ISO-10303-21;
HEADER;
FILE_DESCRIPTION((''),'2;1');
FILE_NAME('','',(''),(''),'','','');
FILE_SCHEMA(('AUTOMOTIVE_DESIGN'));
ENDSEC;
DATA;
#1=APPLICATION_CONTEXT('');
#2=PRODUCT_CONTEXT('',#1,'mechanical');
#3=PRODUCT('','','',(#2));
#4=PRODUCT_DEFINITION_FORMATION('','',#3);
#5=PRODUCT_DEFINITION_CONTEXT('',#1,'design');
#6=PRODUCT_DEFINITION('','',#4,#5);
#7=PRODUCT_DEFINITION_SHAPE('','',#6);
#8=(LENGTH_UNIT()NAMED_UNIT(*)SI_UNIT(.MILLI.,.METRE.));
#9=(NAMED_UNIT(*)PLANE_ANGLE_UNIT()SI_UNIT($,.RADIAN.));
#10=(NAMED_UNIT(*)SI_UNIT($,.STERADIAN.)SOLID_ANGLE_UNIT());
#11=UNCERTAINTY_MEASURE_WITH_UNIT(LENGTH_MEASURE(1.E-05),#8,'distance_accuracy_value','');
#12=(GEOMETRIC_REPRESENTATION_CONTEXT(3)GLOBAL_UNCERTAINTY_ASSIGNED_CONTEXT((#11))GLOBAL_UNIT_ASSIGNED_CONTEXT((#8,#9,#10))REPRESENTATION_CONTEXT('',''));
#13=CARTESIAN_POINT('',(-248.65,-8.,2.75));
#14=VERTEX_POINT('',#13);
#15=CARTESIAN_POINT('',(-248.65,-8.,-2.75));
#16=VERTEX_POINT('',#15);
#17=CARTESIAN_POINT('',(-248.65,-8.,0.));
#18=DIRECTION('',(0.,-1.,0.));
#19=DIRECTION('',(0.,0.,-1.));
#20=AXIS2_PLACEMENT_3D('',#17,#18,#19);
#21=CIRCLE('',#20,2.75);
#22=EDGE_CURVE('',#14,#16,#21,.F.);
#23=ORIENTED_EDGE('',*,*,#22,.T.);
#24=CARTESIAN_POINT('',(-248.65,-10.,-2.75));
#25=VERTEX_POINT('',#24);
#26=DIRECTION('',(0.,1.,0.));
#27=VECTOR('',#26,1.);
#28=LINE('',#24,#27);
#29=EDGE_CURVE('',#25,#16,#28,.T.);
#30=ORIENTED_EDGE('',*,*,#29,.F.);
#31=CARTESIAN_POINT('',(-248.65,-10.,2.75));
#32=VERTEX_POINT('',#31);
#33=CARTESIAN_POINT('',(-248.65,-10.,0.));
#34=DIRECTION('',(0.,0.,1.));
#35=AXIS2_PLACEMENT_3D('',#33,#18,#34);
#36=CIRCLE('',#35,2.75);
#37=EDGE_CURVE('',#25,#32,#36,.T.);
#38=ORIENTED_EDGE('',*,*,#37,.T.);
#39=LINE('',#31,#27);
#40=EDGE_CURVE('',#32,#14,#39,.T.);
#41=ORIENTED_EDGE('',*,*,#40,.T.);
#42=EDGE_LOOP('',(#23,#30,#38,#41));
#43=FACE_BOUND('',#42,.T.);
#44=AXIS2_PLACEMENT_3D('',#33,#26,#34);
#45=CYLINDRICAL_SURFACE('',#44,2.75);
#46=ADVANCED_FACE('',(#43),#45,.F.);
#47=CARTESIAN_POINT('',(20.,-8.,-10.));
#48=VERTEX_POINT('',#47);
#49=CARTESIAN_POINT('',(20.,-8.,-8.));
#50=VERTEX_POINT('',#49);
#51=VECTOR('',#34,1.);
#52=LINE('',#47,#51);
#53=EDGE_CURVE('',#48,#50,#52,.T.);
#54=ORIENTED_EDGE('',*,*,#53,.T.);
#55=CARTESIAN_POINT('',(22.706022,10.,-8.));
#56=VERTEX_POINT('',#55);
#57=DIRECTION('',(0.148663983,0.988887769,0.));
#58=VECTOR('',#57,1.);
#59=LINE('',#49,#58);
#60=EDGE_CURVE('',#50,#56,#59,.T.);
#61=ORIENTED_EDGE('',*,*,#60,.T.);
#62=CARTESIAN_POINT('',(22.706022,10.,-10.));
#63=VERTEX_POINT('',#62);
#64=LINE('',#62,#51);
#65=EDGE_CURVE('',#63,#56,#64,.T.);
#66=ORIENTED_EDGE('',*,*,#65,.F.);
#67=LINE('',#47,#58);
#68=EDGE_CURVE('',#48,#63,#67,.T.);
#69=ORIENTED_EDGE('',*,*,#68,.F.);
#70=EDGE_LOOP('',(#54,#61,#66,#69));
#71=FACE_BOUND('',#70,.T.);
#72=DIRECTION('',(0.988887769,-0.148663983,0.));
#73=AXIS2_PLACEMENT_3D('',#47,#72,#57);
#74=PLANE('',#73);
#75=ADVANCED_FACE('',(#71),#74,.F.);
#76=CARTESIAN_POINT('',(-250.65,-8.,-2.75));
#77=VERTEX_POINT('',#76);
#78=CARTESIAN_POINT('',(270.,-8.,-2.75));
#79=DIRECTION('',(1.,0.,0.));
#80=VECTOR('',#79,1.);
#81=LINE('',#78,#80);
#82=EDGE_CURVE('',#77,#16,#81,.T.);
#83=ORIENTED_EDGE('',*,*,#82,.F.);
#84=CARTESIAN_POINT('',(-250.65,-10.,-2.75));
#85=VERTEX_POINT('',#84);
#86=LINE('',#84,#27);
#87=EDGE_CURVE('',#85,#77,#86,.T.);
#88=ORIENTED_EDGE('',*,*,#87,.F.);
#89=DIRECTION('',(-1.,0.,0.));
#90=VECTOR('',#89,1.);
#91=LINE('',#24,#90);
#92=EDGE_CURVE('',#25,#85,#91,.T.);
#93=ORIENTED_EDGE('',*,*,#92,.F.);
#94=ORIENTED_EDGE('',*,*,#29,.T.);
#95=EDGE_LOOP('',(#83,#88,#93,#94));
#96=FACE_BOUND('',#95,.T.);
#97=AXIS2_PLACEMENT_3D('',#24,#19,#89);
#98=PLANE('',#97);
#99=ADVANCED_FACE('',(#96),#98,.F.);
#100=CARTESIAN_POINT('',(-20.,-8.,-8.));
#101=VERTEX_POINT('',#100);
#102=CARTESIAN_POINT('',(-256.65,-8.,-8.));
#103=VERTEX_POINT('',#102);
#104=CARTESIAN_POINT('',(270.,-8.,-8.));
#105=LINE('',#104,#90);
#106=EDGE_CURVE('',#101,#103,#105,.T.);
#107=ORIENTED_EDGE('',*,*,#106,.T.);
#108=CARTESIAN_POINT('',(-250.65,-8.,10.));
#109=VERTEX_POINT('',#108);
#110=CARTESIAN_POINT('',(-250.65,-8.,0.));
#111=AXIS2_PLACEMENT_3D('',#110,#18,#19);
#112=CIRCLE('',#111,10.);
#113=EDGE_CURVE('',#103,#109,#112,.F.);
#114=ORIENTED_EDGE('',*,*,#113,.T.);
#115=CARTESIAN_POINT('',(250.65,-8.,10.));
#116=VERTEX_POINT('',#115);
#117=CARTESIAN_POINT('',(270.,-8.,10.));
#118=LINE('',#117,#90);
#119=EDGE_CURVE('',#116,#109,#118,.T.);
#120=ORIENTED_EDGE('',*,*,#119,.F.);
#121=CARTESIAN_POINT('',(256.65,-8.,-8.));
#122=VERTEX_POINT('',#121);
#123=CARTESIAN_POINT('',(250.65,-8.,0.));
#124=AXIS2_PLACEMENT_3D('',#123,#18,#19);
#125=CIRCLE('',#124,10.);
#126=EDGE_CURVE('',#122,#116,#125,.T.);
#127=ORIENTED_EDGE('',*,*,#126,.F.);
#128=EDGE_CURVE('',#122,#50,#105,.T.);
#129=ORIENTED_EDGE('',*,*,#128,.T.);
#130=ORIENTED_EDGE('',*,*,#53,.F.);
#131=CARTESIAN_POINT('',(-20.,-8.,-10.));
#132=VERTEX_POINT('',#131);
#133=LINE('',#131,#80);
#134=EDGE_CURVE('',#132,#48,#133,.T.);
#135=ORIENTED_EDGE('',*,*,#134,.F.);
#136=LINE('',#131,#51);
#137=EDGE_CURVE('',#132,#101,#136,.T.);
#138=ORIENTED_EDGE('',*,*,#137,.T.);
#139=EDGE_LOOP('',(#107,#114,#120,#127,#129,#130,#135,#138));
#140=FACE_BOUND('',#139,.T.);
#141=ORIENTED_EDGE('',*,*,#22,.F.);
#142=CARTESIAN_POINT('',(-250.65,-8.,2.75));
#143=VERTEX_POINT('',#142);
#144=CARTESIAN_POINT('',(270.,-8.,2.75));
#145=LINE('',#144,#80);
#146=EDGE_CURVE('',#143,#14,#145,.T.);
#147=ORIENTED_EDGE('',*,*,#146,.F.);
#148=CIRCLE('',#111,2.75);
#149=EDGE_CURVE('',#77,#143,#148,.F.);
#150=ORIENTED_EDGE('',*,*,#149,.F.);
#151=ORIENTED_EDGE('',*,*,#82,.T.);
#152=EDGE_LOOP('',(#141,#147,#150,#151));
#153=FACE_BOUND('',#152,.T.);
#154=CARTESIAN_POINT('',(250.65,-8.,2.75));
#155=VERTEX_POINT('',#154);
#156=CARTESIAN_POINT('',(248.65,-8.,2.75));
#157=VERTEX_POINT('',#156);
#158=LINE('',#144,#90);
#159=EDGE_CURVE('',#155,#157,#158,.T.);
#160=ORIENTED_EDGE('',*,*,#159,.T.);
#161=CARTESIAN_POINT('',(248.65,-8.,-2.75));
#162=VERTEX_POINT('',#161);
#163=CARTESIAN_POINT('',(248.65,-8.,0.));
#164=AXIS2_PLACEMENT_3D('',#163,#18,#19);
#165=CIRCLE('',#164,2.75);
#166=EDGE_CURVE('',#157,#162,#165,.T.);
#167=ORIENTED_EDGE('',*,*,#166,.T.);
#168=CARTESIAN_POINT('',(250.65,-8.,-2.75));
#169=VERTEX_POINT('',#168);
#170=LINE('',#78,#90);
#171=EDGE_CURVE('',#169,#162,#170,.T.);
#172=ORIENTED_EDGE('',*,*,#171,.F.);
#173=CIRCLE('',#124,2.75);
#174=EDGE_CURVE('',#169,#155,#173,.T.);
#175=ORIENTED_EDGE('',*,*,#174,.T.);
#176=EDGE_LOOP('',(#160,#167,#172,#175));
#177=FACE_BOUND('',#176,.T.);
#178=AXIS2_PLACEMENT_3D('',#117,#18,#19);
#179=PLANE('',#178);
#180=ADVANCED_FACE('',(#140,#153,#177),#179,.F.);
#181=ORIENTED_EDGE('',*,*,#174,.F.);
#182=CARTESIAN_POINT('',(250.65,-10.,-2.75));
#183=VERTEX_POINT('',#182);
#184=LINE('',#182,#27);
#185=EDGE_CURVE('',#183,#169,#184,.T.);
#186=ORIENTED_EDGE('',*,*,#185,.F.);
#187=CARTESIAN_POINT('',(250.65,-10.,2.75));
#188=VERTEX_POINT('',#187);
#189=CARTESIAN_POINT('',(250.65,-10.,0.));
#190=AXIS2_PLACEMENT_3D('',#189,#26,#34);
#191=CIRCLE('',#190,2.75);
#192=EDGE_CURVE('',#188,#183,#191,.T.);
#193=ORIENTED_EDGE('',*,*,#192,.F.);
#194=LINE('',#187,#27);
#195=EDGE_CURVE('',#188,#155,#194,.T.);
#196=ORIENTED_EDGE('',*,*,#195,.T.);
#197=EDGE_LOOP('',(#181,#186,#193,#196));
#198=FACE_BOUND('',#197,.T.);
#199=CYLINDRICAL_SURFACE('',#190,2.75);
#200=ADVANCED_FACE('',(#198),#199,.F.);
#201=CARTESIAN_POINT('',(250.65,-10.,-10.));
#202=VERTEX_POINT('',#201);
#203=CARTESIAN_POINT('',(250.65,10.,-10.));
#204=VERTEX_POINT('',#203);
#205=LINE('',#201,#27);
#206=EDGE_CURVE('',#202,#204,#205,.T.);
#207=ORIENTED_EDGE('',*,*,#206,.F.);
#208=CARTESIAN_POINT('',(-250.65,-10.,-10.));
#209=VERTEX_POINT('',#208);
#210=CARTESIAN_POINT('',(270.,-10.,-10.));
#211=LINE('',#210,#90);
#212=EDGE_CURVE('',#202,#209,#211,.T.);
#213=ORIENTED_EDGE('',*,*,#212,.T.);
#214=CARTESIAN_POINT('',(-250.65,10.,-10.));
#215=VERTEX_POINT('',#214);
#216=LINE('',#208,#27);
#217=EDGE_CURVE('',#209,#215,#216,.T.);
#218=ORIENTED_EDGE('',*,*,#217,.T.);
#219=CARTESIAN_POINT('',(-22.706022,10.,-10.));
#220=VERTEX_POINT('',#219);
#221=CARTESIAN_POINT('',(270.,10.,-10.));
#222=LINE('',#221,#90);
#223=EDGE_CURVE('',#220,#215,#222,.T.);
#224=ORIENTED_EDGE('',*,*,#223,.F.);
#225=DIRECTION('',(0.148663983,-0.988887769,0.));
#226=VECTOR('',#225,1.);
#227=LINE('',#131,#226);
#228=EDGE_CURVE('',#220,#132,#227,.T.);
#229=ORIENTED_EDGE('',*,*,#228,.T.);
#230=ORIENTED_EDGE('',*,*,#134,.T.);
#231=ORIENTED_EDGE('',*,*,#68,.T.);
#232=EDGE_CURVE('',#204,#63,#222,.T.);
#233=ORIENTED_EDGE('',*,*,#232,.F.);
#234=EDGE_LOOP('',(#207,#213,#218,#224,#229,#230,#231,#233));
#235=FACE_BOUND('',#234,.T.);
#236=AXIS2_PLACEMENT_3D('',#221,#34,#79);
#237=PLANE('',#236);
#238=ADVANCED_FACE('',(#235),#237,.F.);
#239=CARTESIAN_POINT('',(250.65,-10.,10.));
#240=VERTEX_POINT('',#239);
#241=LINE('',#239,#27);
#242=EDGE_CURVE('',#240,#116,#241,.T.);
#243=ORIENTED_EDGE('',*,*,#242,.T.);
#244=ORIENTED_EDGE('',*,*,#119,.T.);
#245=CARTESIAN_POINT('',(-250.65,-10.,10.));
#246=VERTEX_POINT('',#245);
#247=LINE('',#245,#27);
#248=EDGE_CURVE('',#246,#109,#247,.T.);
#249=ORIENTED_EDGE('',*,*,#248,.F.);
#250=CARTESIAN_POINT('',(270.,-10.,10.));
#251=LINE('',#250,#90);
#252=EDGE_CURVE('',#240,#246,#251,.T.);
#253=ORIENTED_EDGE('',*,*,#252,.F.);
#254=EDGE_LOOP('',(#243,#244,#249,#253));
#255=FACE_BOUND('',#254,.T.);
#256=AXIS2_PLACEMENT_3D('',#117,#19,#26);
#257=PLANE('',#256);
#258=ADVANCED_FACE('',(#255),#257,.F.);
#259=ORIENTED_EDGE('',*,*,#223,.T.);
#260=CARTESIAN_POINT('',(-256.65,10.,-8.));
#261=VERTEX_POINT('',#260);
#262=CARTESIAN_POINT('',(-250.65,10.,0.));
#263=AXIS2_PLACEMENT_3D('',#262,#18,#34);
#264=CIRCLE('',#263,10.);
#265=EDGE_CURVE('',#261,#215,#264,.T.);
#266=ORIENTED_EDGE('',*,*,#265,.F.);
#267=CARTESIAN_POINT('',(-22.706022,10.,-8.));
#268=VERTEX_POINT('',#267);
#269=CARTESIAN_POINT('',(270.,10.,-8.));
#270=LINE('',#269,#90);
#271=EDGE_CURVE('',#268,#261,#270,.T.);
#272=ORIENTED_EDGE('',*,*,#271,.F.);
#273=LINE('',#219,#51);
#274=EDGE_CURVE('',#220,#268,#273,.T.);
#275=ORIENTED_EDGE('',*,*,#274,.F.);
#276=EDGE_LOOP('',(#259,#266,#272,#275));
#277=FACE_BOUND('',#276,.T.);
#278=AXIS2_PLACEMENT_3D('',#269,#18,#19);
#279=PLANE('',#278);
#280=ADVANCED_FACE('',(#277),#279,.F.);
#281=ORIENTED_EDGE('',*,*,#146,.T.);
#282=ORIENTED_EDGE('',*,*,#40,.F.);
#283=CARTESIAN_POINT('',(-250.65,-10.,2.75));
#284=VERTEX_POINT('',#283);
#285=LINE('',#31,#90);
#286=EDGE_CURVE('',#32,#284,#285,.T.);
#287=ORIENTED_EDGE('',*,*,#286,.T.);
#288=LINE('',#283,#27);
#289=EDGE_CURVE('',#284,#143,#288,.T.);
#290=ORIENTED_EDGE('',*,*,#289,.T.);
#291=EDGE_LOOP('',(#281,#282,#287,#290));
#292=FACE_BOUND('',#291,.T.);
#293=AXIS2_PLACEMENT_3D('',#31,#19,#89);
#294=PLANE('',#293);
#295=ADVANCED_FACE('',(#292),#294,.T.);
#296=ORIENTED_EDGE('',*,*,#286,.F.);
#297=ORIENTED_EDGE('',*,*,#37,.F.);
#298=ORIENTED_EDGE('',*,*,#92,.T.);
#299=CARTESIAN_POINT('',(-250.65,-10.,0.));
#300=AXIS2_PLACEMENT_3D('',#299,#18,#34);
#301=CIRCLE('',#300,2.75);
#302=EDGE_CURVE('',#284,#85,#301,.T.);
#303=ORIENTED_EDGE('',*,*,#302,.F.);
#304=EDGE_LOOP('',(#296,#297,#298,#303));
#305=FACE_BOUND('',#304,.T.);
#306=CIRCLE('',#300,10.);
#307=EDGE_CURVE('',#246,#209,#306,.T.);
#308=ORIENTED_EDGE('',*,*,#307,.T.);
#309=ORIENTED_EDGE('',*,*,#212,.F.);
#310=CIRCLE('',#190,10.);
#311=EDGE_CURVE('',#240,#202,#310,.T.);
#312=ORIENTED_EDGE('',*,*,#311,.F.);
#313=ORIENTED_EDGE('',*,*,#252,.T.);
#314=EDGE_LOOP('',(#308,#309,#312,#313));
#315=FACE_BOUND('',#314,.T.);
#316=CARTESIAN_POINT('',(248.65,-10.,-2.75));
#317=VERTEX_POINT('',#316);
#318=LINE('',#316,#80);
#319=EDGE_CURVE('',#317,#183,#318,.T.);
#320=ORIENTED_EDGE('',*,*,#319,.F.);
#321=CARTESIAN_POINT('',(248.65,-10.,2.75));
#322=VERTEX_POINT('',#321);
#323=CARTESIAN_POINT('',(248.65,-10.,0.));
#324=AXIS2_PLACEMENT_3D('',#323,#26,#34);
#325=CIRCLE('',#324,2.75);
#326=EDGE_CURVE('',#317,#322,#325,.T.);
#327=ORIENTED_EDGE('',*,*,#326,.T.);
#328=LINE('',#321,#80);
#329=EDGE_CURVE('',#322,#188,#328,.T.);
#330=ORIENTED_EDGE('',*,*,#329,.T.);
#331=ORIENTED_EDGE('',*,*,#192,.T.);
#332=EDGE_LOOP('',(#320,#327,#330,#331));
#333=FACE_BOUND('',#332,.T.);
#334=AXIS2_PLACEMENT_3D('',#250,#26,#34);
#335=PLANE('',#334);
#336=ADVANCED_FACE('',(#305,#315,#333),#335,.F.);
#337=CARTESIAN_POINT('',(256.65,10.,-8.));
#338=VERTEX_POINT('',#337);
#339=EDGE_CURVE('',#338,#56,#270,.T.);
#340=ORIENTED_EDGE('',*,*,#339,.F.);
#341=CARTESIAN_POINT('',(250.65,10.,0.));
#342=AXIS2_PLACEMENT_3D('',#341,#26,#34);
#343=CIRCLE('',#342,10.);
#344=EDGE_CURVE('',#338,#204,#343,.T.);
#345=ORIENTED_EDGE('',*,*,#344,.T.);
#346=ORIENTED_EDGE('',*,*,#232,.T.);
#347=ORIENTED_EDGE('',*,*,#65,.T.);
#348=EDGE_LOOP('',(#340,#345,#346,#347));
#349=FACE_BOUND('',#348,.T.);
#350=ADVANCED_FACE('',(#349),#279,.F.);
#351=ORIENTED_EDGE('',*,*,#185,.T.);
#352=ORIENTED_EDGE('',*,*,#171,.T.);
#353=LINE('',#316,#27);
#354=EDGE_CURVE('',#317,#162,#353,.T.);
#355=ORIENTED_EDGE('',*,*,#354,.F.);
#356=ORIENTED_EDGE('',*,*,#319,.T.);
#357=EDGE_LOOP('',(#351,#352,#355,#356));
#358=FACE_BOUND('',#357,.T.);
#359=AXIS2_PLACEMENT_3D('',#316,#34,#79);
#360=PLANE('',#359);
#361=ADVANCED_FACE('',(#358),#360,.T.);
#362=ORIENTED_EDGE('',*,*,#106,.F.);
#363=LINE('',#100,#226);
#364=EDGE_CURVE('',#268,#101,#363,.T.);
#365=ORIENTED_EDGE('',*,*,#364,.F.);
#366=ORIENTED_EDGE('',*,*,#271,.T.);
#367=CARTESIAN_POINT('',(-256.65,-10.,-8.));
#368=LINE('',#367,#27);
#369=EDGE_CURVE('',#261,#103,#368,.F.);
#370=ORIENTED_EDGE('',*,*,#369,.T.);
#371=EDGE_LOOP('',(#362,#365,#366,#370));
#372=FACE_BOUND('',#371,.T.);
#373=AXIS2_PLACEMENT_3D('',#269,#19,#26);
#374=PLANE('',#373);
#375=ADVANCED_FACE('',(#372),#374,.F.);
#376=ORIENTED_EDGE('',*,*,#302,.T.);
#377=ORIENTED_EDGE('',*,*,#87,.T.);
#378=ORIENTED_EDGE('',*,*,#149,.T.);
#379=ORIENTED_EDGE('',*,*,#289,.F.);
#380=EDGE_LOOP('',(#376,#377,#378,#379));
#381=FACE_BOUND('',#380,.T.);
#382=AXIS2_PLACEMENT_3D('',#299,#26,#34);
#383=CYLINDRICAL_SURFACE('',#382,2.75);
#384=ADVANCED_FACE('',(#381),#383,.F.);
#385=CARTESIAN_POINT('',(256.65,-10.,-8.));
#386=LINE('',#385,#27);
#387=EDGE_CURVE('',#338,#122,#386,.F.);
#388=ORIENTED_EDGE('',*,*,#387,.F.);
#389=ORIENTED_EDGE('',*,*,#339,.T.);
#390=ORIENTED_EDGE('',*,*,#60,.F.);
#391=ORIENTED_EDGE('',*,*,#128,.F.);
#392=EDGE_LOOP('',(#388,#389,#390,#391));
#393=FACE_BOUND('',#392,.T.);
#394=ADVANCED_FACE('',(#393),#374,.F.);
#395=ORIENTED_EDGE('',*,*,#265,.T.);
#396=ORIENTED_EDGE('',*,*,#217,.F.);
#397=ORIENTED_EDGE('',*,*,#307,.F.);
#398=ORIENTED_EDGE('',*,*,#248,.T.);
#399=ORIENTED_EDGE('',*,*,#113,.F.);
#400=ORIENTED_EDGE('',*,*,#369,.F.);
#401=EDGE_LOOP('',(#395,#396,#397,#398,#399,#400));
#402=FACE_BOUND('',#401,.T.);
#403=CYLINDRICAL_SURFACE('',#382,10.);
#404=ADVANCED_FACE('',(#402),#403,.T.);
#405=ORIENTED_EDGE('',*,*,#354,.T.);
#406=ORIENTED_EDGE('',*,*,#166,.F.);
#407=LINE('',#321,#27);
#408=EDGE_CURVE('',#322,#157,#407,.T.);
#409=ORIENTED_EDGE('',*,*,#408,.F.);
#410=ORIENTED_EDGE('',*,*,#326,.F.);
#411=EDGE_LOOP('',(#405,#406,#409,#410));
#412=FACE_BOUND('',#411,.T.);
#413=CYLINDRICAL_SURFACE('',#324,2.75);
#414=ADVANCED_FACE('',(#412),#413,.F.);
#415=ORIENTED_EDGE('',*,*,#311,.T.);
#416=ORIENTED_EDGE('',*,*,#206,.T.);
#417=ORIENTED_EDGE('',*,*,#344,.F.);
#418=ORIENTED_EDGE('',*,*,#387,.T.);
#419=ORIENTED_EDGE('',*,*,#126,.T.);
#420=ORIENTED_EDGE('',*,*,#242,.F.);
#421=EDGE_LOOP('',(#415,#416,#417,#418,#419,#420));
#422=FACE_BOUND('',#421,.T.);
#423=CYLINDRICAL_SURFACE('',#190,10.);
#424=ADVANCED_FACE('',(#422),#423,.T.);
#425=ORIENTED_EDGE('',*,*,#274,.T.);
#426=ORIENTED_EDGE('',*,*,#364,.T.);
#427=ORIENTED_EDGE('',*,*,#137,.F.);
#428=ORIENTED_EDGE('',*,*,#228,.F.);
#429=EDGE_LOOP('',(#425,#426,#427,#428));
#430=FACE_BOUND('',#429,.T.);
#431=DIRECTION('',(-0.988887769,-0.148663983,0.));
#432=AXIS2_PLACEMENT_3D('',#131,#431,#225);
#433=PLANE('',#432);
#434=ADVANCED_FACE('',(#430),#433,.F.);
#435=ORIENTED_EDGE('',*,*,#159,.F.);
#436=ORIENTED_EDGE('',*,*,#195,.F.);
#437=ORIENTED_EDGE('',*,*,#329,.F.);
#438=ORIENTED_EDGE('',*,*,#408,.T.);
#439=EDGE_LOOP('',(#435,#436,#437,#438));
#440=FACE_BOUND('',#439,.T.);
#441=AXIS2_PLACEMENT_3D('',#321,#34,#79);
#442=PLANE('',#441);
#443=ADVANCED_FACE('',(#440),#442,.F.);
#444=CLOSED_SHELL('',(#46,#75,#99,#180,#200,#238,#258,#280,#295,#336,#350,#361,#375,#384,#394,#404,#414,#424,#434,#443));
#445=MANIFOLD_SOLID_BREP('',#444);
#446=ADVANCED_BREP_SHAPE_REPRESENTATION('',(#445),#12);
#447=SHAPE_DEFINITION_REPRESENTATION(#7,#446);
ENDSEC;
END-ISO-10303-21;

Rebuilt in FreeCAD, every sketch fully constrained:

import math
import FreeCAD as App
import Part
import Sketcher

V = App.Vector
Q = App.Units.Quantity

doc = App.newDocument("Part")
body = doc.addObject("PartDesign::Body", "Body")

# Sketch on YZ plane
sketch1 = body.newObject("Sketcher::SketchObject", "Sketch")
sketch1.AttachmentSupport = (doc.getObject("YZ_Plane"), [""])
sketch1.MapMode = "FlatFace"
sketch1.addGeometry([
    Part.LineSegment(V(10, -10, 0), V(10, -8, 0)),  # 0
    Part.LineSegment(V(10, -8, 0), V(-8, -8, 0)),  # 1
    Part.LineSegment(V(-8, -8, 0), V(-8, 10, 0)),  # 2
    Part.LineSegment(V(-8, 10, 0), V(-10, 10, 0)),  # 3
    Part.LineSegment(V(-10, 10, 0), V(-10, -10, 0)),  # 4
    Part.LineSegment(V(-10, -10, 0), V(10, -10, 0)),  # 5
], False)
sketch1.addConstraint([
    Sketcher.Constraint("Coincident", 0, 2, 1, 1),
    Sketcher.Constraint("Coincident", 1, 2, 2, 1),
    Sketcher.Constraint("Coincident", 2, 2, 3, 1),
    Sketcher.Constraint("Coincident", 3, 2, 4, 1),
    Sketcher.Constraint("Coincident", 4, 2, 5, 1),
    Sketcher.Constraint("Coincident", 5, 2, 0, 1),
    Sketcher.Constraint("Vertical", 0),
    Sketcher.Constraint("Horizontal", 1),
    Sketcher.Constraint("Vertical", 2),
    Sketcher.Constraint("Horizontal", 3),
    Sketcher.Constraint("Vertical", 4),
    Sketcher.Constraint("Horizontal", 5),
    Sketcher.Constraint("Symmetric", 3, 2, 5, 2, -1, 1),
    Sketcher.Constraint("Equal", 3, 0),
    Sketcher.Constraint("Equal", 1, 2),
    Sketcher.Constraint("DistanceX", 1, 2, 1, 1, Q("18 mm")),
    Sketcher.Constraint("DistanceX", 3, 2, 3, 1, Q("2 mm")),
])
pad1 = body.newObject("PartDesign::Pad", "Pad")
pad1.Profile = sketch1
pad1.Length = 540
pad1.Midplane = True

# Sketch on XZ plane
sketch2 = body.newObject("Sketcher::SketchObject", "Sketch001")
sketch2.AttachmentSupport = (doc.getObject("XZ_Plane"), [""])
sketch2.MapMode = "FlatFace"
sketch2.addGeometry([
    Part.LineSegment(V(250.65, -2.75, 0), V(248.65, -2.75, 0)),  # 0
    Part.ArcOfCircle(Part.Circle(V(248.65, 0, 0), V(0, 0, 1), 2.75), math.radians(90), math.radians(270)),  # 1
    Part.LineSegment(V(248.65, 2.75, 0), V(250.65, 2.75, 0)),  # 2
    Part.ArcOfCircle(Part.Circle(V(250.65, 0, 0), V(0, 0, 1), 2.75), math.radians(-90), math.radians(90)),  # 3
    Part.ArcOfCircle(Part.Circle(V(250.65, 0, 0), V(0, 0, 1), 10), math.radians(-90), math.radians(90)),  # 4
    Part.LineSegment(V(250.65, 10, 0), V(270, 10, 0)),  # 5
    Part.LineSegment(V(270, 10, 0), V(270, -10, 0)),  # 6
    Part.LineSegment(V(270, -10, 0), V(250.65, -10, 0)),  # 7
], False)
sketch2.addConstraint([
    Sketcher.Constraint("Tangent", 0, 2, 1, 2),
    Sketcher.Constraint("Tangent", 1, 1, 2, 1),
    Sketcher.Constraint("Tangent", 2, 2, 3, 2),
    Sketcher.Constraint("Tangent", 3, 1, 0, 1),
    Sketcher.Constraint("Tangent", 4, 2, 5, 1),
    Sketcher.Constraint("Coincident", 5, 2, 6, 1),
    Sketcher.Constraint("Coincident", 6, 2, 7, 1),
    Sketcher.Constraint("Tangent", 7, 2, 4, 1),
    Sketcher.Constraint("Horizontal", 0),
    Sketcher.Constraint("Horizontal", 2),
    Sketcher.Constraint("Horizontal", 5),
    Sketcher.Constraint("Vertical", 6),
    Sketcher.Constraint("Horizontal", 7),
    Sketcher.Constraint("Coincident", 4, 3, 3, 3),
    Sketcher.Constraint("PointOnObject", 1, 3, -1),
    Sketcher.Constraint("Radius", 4, Q("10 mm")),
    Sketcher.Constraint("DistanceX", 0, 2, 0, 1, Q("2 mm")),
    Sketcher.Constraint("Radius", 1, Q("2.75 mm")),
    Sketcher.Constraint("DistanceX", -1, 1, 5, 2, Q("270 mm")),
    Sketcher.Constraint("DistanceX", 5, 1, 5, 2, Q("19.35 mm")),
])
pocket1 = body.newObject("PartDesign::Pocket", "Pocket")
pocket1.Profile = sketch2
pocket1.Length = 542.740233
pocket1.Midplane = True
doc.recompute()

mirrored = body.newObject("PartDesign::Mirrored", "Mirrored")
mirrored.Originals = [pocket1]
mirrored.MirrorPlane = (doc.getObject("YZ_Plane"), [""])
body.Tip = mirrored

# Sketch on XY plane
sketch3 = body.newObject("Sketcher::SketchObject", "Sketch002")
sketch3.AttachmentSupport = (doc.getObject("XY_Plane"), [""])
sketch3.MapMode = "FlatFace"
sketch3.AttachmentOffset = App.Placement(V(0, 0, -8), App.Rotation())
sketch3.addGeometry([
    Part.LineSegment(V(-20, -8, 0), V(20, -8, 0)),
    Part.LineSegment(V(20, -8, 0), V(22.706022, 10, 0)),
    Part.LineSegment(V(22.706022, 10, 0), V(-22.706022, 10, 0)),
    Part.LineSegment(V(-22.706022, 10, 0), V(-20, -8, 0)),
], False)
sketch3.addConstraint([
    Sketcher.Constraint("Coincident", 0, 2, 1, 1),
    Sketcher.Constraint("Coincident", 1, 2, 2, 1),
    Sketcher.Constraint("Coincident", 2, 2, 3, 1),
    Sketcher.Constraint("Coincident", 3, 2, 0, 1),
    Sketcher.Constraint("Horizontal", 0),
    Sketcher.Constraint("Horizontal", 2),
    Sketcher.Constraint("Equal", 1, 3),
    Sketcher.Constraint("DistanceX", 0, 1, 0, 2, Q("40 mm")),
    Sketcher.Constraint("DistanceX", -1, 1, 0, 2, Q("20 mm")),
    Sketcher.Constraint("DistanceY", 0, 2, -1, 1, Q("8 mm")),
    Sketcher.Constraint("DistanceY", -1, 1, 1, 2, Q("10 mm")),
    Sketcher.Constraint("DistanceX", 2, 2, 2, 1, Q("45.412043 mm")),
])
pocket2 = body.newObject("PartDesign::Pocket", "Pocket001")
pocket2.Profile = sketch3
pocket2.Type = "ThroughAll"

doc.recompute()
